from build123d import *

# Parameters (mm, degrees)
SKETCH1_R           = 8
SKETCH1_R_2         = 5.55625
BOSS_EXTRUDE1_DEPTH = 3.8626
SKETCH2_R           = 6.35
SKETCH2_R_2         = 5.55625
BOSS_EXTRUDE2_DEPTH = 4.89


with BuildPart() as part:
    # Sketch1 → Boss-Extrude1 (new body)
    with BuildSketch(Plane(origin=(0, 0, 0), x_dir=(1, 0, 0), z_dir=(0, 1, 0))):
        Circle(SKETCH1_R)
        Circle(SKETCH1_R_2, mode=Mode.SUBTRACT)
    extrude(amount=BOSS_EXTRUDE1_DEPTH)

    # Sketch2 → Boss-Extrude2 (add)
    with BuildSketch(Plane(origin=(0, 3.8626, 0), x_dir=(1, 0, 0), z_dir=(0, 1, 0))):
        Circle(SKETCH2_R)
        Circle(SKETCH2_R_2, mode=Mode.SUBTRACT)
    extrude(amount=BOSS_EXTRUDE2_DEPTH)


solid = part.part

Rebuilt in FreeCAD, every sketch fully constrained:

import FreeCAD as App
import Part
import Sketcher

V = App.Vector
Q = App.Units.Quantity

doc = App.newDocument("Part")
body = doc.addObject("PartDesign::Body", "Body")

sketch1 = body.newObject("Sketcher::SketchObject", "Sketch")
sketch1.AttachmentSupport = (doc.getObject("XZ_Plane"), [""])
sketch1.MapMode = "FlatFace"
sketch1.addGeometry(Part.Circle(V(0, 0, 0), V(0, 0, 1), 8), False)
sketch1.addGeometry(Part.Circle(V(0, 0, 0), V(0, 0, 1), 6), False)
sketch1.addConstraint(Sketcher.Constraint("Coincident", 0, 3, -1, 1))
sketch1.addConstraint(Sketcher.Constraint("Coincident", 1, 3, -1, 1))
sketch1.addConstraint(Sketcher.Constraint("Diameter", 1, Q("0.4375 in")))
sketch1.addConstraint(Sketcher.Constraint("Diameter", 0, 16.0))
pad1 = body.newObject("PartDesign::Pad", "Pad")
pad1.Profile = sketch1
pad1.Length = 3.8626
pad1.Reversed = True

sketch2 = body.newObject("Sketcher::SketchObject", "Sketch001")
sketch2.AttachmentSupport = (doc.getObject("XZ_Plane"), [""])
sketch2.MapMode = "FlatFace"
sketch2.AttachmentOffset = App.Placement(V(0, 0, -3.8626), App.Rotation())
sketch2.addGeometry(Part.Circle(V(0, 0, 0), V(0, 0, 1), 6), False)
sketch2.addGeometry(Part.Circle(V(0, 0, 0), V(0, 0, 1), 6), False)
sketch2.addConstraint(Sketcher.Constraint("Coincident", 0, 3, -1, 1))
sketch2.addConstraint(Sketcher.Constraint("Coincident", 1, 3, -1, 1))
sketch2.addConstraint(Sketcher.Constraint("Diameter", 0, Q("0.5 in")))
sketch2.addConstraint(Sketcher.Constraint("Diameter", 1, Q("0.4375 in")))
pad2 = body.newObject("PartDesign::Pad", "Pad001")
pad2.Profile = sketch2
pad2.Length = 4.89
pad2.Reversed = True

doc.recompute()
